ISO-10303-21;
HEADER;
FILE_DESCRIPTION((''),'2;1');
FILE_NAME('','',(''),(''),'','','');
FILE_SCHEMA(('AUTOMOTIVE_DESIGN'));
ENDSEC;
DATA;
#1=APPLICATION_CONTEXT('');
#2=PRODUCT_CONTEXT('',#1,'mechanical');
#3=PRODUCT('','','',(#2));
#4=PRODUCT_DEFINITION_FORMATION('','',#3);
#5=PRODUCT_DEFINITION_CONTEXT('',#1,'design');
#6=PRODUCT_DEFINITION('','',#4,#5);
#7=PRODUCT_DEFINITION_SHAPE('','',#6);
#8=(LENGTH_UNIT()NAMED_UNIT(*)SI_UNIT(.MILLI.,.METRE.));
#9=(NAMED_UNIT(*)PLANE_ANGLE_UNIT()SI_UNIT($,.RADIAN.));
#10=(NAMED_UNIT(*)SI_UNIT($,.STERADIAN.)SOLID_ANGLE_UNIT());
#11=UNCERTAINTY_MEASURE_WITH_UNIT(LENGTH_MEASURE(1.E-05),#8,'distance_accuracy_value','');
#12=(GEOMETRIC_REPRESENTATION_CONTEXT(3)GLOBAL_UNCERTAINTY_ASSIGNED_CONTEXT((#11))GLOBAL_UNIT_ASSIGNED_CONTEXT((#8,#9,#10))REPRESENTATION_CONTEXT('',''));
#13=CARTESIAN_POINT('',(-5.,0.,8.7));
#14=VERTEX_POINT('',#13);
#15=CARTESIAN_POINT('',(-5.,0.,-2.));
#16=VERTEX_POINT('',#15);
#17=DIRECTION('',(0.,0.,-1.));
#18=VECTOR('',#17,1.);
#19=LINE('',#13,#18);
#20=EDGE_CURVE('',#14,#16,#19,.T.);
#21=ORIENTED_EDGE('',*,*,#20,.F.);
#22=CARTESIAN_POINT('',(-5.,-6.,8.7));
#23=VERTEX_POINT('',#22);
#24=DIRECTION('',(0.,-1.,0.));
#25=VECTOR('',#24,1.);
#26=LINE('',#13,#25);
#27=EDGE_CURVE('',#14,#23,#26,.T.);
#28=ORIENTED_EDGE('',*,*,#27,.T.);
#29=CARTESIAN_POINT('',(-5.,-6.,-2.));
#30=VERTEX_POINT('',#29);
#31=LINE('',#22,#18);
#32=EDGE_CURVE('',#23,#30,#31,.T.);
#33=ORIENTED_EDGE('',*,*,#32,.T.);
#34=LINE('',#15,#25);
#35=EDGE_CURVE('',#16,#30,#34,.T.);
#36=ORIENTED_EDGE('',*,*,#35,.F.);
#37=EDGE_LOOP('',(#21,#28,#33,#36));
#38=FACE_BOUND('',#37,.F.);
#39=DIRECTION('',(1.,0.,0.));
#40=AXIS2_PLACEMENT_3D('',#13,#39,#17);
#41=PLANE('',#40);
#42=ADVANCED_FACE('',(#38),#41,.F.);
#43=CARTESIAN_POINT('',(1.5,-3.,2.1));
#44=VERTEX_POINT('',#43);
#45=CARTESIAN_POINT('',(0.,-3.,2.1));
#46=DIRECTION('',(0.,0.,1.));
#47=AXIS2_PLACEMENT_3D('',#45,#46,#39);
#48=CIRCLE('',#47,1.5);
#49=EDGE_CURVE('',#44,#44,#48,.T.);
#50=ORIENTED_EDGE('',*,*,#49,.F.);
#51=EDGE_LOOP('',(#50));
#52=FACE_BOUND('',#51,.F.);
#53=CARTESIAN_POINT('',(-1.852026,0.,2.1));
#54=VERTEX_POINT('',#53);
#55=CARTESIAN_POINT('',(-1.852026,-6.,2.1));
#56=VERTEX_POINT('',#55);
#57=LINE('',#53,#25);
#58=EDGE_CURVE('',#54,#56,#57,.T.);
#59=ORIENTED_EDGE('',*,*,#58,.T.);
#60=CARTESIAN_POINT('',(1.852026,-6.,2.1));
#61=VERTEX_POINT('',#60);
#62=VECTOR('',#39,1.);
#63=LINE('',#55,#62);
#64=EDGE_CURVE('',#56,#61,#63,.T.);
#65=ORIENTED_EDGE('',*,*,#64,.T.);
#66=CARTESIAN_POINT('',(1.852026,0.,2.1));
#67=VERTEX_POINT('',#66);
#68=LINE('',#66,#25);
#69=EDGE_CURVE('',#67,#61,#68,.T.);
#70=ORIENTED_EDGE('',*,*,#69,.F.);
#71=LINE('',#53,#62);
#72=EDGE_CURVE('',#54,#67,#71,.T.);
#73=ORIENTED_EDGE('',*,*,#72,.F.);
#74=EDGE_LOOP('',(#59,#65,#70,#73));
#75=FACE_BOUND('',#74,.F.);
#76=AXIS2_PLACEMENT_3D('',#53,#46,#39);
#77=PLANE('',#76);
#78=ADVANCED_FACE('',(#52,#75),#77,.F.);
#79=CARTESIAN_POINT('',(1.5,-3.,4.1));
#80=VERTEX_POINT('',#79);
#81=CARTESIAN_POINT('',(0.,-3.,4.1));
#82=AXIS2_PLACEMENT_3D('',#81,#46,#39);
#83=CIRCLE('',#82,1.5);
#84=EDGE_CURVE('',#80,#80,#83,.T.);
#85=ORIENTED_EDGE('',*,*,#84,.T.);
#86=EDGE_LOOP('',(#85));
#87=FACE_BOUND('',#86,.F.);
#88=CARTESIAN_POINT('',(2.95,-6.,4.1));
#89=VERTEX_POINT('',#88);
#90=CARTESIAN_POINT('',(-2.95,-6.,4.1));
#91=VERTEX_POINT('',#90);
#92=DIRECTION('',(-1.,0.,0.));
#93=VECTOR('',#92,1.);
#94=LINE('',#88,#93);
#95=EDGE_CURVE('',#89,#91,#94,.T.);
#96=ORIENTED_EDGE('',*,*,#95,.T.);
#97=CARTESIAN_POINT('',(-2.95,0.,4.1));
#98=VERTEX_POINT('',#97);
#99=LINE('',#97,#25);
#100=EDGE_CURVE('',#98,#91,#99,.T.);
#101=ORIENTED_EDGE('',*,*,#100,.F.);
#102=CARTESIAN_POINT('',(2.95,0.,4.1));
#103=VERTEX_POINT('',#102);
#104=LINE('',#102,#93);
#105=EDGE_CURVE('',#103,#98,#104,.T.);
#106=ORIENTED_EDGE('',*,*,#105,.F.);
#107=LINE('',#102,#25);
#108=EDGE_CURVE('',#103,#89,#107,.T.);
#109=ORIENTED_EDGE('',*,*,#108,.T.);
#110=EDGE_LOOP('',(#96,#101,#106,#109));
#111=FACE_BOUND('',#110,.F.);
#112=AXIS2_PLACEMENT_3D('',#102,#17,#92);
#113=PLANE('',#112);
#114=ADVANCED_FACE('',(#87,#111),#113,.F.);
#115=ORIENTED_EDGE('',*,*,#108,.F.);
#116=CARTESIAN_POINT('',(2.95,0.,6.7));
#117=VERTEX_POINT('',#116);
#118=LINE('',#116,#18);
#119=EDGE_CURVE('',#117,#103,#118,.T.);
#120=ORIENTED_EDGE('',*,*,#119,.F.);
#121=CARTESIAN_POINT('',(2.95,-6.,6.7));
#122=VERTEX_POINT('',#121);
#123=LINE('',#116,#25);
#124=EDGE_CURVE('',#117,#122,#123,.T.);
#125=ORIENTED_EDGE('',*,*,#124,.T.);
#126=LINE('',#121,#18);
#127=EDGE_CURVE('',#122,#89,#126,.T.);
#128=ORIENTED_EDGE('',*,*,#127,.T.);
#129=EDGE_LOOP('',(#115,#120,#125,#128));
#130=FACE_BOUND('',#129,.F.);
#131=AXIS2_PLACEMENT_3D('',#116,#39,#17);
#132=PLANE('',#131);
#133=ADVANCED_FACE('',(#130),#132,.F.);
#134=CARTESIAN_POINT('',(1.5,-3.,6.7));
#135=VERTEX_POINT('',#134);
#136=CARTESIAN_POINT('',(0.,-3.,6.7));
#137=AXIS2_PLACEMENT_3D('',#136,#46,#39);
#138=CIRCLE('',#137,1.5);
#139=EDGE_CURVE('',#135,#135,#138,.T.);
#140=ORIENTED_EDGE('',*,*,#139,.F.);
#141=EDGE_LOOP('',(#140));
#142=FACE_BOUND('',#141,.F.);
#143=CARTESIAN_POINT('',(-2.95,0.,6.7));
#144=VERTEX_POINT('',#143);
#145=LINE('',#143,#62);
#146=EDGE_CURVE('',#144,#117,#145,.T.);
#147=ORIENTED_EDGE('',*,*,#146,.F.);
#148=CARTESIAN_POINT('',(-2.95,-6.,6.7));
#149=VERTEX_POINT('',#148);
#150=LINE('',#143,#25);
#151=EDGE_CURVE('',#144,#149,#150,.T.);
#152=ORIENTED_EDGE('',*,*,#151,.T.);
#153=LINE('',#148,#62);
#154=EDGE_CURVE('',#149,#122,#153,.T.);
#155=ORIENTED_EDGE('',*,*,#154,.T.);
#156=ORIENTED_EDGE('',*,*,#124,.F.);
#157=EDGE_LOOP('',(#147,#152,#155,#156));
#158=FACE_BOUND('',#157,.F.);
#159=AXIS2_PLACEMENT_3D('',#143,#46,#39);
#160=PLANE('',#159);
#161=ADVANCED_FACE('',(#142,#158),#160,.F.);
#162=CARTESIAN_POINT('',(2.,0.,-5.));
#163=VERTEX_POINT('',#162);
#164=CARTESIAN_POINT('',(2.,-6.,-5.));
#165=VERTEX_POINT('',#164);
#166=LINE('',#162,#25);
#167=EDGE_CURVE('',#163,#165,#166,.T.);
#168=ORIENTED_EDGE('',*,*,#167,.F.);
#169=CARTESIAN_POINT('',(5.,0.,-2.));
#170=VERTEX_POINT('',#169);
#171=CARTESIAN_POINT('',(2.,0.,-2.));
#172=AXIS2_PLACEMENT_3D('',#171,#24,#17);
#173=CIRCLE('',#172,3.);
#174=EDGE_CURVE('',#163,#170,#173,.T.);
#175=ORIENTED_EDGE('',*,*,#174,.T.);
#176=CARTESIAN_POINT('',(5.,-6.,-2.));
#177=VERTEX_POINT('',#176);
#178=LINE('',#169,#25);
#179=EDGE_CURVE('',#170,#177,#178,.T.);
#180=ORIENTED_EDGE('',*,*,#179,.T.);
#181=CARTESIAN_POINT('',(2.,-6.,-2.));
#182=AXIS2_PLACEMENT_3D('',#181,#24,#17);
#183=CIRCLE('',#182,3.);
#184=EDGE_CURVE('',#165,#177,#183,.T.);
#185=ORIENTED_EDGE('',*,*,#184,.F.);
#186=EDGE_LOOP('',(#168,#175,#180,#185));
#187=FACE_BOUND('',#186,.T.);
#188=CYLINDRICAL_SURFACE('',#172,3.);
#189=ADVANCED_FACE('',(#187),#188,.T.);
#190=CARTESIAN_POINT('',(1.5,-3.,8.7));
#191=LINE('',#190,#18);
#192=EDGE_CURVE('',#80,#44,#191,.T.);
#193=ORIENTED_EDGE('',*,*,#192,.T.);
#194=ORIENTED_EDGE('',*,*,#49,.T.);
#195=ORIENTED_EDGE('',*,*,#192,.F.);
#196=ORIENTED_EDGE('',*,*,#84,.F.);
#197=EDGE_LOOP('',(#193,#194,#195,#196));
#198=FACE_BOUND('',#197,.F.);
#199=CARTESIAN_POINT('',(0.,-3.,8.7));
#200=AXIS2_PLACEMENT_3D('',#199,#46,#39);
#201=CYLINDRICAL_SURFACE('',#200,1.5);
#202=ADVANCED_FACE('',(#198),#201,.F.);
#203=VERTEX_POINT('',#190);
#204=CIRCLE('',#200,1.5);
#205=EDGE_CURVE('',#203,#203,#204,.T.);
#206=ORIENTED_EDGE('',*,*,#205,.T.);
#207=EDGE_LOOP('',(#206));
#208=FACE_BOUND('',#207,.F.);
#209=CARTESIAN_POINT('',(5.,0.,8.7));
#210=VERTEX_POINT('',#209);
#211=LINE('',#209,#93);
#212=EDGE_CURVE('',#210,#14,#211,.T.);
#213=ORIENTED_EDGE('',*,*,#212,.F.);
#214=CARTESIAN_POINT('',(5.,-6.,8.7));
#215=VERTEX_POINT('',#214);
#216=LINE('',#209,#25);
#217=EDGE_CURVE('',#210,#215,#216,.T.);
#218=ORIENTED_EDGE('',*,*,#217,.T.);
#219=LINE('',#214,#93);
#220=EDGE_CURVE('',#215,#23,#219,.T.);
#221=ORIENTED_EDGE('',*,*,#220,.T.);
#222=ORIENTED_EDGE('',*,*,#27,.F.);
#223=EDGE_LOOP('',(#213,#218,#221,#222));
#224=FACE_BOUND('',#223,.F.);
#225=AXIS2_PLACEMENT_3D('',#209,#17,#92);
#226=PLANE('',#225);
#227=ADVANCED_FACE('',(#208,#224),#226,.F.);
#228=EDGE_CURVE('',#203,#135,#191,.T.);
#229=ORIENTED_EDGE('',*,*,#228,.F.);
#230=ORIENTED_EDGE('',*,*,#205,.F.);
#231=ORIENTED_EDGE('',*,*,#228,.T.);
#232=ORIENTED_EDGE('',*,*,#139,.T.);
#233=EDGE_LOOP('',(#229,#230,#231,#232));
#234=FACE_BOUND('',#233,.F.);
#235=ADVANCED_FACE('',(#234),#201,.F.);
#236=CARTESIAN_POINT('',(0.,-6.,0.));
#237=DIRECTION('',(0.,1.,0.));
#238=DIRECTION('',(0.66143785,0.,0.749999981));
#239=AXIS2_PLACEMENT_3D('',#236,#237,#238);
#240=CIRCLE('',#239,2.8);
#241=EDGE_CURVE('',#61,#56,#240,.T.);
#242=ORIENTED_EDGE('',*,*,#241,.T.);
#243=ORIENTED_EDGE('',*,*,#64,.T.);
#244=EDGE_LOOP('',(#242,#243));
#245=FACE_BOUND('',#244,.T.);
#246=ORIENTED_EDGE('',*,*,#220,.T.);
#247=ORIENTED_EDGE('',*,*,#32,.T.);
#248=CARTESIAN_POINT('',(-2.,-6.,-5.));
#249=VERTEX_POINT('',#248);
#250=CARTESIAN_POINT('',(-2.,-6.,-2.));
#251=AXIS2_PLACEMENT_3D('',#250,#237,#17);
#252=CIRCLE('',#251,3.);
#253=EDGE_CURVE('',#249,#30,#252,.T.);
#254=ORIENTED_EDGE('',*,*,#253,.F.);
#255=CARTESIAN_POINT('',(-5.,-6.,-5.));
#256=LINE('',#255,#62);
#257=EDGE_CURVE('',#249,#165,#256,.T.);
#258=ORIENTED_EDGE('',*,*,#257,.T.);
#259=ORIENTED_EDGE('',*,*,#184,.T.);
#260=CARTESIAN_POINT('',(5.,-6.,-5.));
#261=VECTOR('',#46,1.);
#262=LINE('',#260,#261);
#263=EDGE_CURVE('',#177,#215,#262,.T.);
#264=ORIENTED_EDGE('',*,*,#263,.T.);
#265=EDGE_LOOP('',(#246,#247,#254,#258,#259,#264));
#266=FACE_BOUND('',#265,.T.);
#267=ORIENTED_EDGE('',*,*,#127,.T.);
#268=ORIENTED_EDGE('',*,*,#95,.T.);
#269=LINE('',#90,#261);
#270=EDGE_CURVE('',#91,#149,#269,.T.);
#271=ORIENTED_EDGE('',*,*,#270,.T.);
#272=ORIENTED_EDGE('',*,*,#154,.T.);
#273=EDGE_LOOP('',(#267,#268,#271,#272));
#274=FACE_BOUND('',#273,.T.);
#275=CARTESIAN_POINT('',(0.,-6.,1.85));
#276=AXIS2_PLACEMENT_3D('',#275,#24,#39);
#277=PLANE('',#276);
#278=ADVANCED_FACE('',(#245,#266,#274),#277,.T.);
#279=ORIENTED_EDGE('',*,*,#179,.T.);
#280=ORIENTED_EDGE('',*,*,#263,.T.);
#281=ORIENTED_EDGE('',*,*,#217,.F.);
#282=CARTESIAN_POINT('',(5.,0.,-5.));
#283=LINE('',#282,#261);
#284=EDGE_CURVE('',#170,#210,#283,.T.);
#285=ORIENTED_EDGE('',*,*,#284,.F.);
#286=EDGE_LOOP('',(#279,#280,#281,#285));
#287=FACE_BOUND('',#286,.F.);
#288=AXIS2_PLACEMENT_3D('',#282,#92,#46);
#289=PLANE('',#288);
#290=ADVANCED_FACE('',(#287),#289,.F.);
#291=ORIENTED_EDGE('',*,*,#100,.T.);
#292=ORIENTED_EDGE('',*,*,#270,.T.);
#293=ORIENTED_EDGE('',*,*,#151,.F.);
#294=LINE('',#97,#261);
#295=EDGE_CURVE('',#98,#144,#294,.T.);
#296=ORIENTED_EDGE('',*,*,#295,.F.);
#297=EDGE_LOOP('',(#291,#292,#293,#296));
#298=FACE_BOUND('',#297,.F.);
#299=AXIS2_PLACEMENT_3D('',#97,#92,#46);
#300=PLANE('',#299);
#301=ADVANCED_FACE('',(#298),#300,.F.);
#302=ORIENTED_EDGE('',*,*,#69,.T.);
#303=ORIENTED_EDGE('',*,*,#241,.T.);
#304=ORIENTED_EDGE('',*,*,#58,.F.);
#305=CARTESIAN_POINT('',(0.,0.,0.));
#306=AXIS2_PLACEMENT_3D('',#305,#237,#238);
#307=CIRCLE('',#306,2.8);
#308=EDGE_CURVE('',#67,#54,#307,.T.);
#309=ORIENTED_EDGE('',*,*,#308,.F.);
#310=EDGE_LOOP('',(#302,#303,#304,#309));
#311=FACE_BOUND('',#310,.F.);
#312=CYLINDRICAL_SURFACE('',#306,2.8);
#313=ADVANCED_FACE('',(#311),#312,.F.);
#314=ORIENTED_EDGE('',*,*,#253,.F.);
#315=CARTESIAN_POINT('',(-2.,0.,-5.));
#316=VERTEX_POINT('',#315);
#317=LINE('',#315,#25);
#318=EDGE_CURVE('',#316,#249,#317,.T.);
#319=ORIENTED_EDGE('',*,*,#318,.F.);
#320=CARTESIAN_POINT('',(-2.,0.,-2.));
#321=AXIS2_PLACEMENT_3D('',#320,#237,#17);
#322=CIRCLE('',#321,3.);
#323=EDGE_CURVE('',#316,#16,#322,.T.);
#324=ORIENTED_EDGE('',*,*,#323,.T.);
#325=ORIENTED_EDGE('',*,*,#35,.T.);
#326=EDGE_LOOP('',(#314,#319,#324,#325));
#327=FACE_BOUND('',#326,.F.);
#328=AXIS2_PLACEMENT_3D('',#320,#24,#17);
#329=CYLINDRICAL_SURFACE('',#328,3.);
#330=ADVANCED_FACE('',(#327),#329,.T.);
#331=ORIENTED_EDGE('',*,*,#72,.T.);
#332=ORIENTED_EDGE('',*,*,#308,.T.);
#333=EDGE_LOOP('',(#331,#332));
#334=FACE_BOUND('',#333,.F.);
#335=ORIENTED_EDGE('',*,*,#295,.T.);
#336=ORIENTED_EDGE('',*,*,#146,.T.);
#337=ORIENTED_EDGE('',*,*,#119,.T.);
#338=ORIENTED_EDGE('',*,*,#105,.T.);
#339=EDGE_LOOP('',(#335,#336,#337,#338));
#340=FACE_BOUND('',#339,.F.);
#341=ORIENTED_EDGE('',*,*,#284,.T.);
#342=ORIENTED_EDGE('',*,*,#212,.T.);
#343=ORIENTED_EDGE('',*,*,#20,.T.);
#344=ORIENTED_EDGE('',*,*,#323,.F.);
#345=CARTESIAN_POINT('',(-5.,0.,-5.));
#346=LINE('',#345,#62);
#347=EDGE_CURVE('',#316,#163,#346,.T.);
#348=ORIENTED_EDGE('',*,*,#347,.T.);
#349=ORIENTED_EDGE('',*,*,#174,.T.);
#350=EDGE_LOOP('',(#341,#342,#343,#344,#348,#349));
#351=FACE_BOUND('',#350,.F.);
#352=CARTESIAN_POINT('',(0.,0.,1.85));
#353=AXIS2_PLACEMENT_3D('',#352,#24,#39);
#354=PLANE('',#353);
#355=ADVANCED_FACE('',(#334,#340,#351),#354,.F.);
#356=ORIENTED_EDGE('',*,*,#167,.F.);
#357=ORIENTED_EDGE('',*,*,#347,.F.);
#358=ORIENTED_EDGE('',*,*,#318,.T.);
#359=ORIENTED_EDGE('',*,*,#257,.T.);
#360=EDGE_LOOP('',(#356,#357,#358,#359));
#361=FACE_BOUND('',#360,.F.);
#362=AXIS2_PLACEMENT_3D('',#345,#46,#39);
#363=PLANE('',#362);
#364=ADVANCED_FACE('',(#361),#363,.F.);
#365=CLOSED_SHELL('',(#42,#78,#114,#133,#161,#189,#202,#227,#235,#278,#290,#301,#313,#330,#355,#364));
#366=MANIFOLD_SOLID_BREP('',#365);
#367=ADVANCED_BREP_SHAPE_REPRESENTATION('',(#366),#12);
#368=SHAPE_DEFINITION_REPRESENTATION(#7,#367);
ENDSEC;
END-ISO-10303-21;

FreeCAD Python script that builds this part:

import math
import FreeCAD as App
import Part
import Sketcher
Q = App.Units.Quantity


def edges_at(feature, points):
    """Names of the edges that pass closest to the given points."""
    edges = feature.Shape.Edges
    near = lambda p: min(range(len(edges)), key=lambda i: edges[i].distToShape(Part.Vertex(*p))[0])
    return sorted({f"Edge{near(p) + 1}" for p in points})


def add_polygon(sketch, points):
    """Adds a closed chain of lines whose ends are joined by coincident constraints."""
    first, n = sketch.GeometryCount, len(points)
    for a, b in zip(points, points[1:] + points[:1]):
        sketch.addGeometry(Part.LineSegment(App.Vector(*a, 0), App.Vector(*b, 0)), False)
    for i in range(n):
        sketch.addConstraint(Sketcher.Constraint("Coincident", first + i, 2, first + (i + 1) % n, 1))

doc = App.newDocument("Part")
params = doc.addObject("Spreadsheet::Sheet", "Params")
for row, (alias, value) in enumerate([
    ("sketch1_radius", "2.8 mm"),
    ("sketch1_width", "10 mm"),
    ("sketch1_width2", "5.9 mm"),
    ("sketch1_height", "13.7 mm"),
    ("sketch1_height2", "2.6 mm"),
    ("pad1_length", "6 mm"),
    ("sketch2_diameter", "3 mm"),
    ("pocket1_length", "6.6 mm"),
    ("fillet_radius", "3 mm"),
], start=1):
    params.set(f"A{row}", alias)
    params.set(f"B{row}", "=" + value)
    params.setAlias(f"B{row}", alias)

body = doc.addObject("PartDesign::Body", "Body")

# Sketch on XZ plane
sketch1 = doc.addObject("Sketcher::SketchObject", "Sketch")
body.addObject(sketch1)
sketch1.AttachmentSupport = (doc.XZ_Plane, [""])
sketch1.MapMode = "FlatFace"
add_polygon(sketch1, [(-5, -5), (5, -5), (5, 8.7), (-5, 8.7)])  # lines 0-3
sketch1.addGeometry(Part.LineSegment(App.Vector(-1.9, 2.1, 0), App.Vector(1.9, 2.1, 0)), False)  # 4
sketch1.addGeometry(Part.ArcOfCircle(Part.Circle(App.Vector(0, 0, 0), App.Vector(0, 0, 1), 2.8), math.radians(131), math.radians(409)), False)  # 5
add_polygon(sketch1, [(3, 6.7), (3, 4.1), (-3, 4.1), (-3, 6.7)])  # lines 6-9
sketch1.addConstraint([
    Sketcher.Constraint("Coincident", 4, 1, 5, 1),
    Sketcher.Constraint("Coincident", 5, 2, 4, 2),
    Sketcher.Constraint("Horizontal", 0),
    Sketcher.Constraint("Vertical", 1),
    Sketcher.Constraint("Horizontal", 2),
    Sketcher.Constraint("Vertical", 3),
    Sketcher.Constraint("Horizontal", 4),
    Sketcher.Constraint("Vertical", 6),
    Sketcher.Constraint("Horizontal", 7),
    Sketcher.Constraint("Vertical", 8),
    Sketcher.Constraint("Horizontal", 9),
    Sketcher.Constraint("Coincident", 5, 3, -1, 1),
    Sketcher.Constraint("Radius", 5, Q("2.8 mm")),
    Sketcher.Constraint("DistanceX", 0, 1, 0, 2, Q("10 mm")),
    Sketcher.Constraint("DistanceX", 7, 2, 7, 1, Q("5.9 mm")),
    Sketcher.Constraint("DistanceY", 1, 1, 1, 2, Q("13.7 mm")),
    Sketcher.Constraint("DistanceY", 6, 2, 6, 1, Q("2.6 mm")),
    Sketcher.Constraint("DistanceX", -1, 1, 0, 2, Q("5 mm")),
    Sketcher.Constraint("DistanceY", 0, 2, -1, 1, Q("5 mm")),
    Sketcher.Constraint("DistanceY", 5, 2, 6, 2, Q("2 mm")),
    Sketcher.Constraint("DistanceY", 8, 2, 2, 2, Q("2 mm")),
    Sketcher.Constraint("DistanceX", -1, 1, 6, 2, Q("2.95 mm")),
])
sketch1.setExpression("Constraints[20]", "Params.sketch1_radius")
sketch1.setExpression("Constraints[21]", "Params.sketch1_width")
sketch1.setExpression("Constraints[22]", "Params.sketch1_width2")
sketch1.setExpression("Constraints[23]", "Params.sketch1_height")
sketch1.setExpression("Constraints[24]", "Params.sketch1_height2")
pad1 = doc.addObject("PartDesign::Pad", "Pad")
body.addObject(pad1)
pad1.Profile = sketch1
pad1.setExpression("Length", "Params.pad1_length")

# Sketch on XY plane
sketch2 = doc.addObject("Sketcher::SketchObject", "Sketch001")
body.addObject(sketch2)
sketch2.AttachmentSupport = (doc.XY_Plane, [""])
sketch2.MapMode = "FlatFace"
sketch2.AttachmentOffset = App.Placement(App.Vector(0, 0, 8.7), App.Rotation())
sketch2.addGeometry(Part.Circle(App.Vector(0, -3, 0), App.Vector(0, 0, 1), 1.5), False)
sketch2.addConstraint([
    Sketcher.Constraint("PointOnObject", 0, 3, -2),
    Sketcher.Constraint("Diameter", 0, Q("3 mm")),
    Sketcher.Constraint("DistanceY", 0, 3, -1, 1, Q("3 mm")),
])
sketch2.setExpression("Constraints[1]", "Params.sketch2_diameter")
pocket1 = doc.addObject("PartDesign::Pocket", "Pocket")
body.addObject(pocket1)
pocket1.Profile = sketch2
pocket1.setExpression("Length", "Params.pocket1_length")
doc.recompute()

fillet = doc.addObject("PartDesign::Fillet", "Fillet")
body.addObject(fillet)
fillet.Base = (pocket1, edges_at(pocket1, [(5, -3, -5), (-5, -3, -5)]))
fillet.setExpression("Radius", "Params.fillet_radius")

doc.recompute()
